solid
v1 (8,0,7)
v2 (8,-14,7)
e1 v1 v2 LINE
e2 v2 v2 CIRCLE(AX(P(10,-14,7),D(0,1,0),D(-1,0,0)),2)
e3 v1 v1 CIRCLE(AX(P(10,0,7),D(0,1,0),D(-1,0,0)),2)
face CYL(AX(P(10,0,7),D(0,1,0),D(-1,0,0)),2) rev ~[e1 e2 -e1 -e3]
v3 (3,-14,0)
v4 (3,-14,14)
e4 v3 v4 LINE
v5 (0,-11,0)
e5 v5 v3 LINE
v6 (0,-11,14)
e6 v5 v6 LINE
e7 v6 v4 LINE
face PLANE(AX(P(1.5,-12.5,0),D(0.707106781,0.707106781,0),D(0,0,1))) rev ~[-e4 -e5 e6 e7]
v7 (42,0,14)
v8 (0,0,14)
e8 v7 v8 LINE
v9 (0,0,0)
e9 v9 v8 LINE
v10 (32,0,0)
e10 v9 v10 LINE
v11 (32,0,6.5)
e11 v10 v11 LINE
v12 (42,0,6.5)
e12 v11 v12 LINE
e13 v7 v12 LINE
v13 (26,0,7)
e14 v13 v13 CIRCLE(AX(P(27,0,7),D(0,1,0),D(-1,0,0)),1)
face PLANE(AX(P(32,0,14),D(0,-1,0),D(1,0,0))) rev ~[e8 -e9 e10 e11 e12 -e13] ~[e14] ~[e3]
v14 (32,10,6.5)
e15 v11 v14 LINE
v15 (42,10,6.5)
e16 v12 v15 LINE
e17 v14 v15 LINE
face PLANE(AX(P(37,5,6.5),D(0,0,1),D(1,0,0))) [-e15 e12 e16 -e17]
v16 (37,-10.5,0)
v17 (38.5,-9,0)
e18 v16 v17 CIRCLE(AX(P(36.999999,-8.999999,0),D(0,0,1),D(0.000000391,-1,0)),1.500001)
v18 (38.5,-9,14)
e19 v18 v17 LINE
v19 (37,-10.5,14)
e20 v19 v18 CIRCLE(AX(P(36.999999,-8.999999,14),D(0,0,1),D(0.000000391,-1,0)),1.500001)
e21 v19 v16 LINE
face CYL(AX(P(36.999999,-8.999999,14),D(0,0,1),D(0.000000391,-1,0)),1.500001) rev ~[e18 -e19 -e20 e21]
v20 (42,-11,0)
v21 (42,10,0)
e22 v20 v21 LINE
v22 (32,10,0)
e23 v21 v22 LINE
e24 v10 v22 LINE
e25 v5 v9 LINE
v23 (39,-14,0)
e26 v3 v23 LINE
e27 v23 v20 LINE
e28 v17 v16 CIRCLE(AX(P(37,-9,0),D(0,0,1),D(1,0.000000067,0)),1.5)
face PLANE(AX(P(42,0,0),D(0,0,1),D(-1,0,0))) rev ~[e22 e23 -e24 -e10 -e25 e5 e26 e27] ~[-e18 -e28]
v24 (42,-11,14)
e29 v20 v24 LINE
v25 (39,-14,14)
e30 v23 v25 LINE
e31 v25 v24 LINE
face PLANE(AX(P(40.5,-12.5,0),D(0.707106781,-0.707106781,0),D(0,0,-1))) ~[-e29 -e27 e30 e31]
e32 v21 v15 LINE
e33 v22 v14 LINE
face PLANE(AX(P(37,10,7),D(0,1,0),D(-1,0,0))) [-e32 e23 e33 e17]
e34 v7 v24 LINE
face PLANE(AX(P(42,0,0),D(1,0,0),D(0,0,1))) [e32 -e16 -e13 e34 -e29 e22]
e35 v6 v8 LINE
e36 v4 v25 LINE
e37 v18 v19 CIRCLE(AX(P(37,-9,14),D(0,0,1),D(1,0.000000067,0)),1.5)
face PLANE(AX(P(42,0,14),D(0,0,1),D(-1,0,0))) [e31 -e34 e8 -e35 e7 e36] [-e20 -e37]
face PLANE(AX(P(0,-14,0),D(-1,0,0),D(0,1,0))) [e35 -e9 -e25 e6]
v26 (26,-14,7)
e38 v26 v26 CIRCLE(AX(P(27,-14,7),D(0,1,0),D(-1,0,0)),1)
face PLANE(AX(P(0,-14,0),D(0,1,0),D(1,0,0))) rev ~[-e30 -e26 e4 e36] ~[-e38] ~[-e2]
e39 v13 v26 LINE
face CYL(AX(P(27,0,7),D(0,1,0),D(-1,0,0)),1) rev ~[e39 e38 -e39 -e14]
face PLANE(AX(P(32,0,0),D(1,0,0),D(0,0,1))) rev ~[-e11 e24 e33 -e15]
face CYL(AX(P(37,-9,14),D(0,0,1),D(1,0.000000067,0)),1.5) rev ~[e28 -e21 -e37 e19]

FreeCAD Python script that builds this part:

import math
import FreeCAD as App
import Part
import Sketcher
from FreeCAD import Vector
Q = App.Units.Quantity


def edges_at(feature, points):
    """Names of the edges that pass closest to the given points."""
    edges = feature.Shape.Edges
    near = lambda p: min(range(len(edges)), key=lambda i: edges[i].distToShape(Part.Vertex(*p))[0])
    return sorted({f"Edge{near(p) + 1}" for p in points})


def add_polygon(sketch, points):
    """Adds a closed chain of lines whose ends are joined by coincident constraints."""
    first, n = sketch.GeometryCount, len(points)
    for a, b in zip(points, points[1:] + points[:1]):
        sketch.addGeometry(Part.LineSegment(App.Vector(*a, 0), App.Vector(*b, 0)), False)
    for i in range(n):
        sketch.addConstraint(Sketcher.Constraint("Coincident", first + i, 2, first + (i + 1) % n, 1))

doc = App.newDocument("Part")
body = doc.addObject("PartDesign::Body", "Body")

# Sketch on XY plane
sketch1 = body.newObject("Sketcher::SketchObject", "Sketch")
sketch1.AttachmentSupport = (doc.getObject("XY_Plane"), [""])
sketch1.MapMode = "FlatFace"
add_polygon(sketch1, [(0, 0), (0, -14), (42, -14), (42, 0)])  # lines 0-3
sketch1.addConstraint(Sketcher.Constraint("Vertical", 0))
sketch1.addConstraint(Sketcher.Constraint("Horizontal", 1))
sketch1.addConstraint(Sketcher.Constraint("Vertical", 2))
sketch1.addConstraint(Sketcher.Constraint("Horizontal", 3))
sketch1.addConstraint(Sketcher.Constraint("Coincident", 3, 2, -1, 1))
sketch1.addConstraint(Sketcher.Constraint("DistanceX", 1, 1, 1, 2, Q("42 mm")))
sketch1.addConstraint(Sketcher.Constraint("DistanceY", 0, 2, 0, 1, Q("14 mm")))
pad1 = body.newObject("PartDesign::Pad", "Pad")
pad1.Profile = sketch1
pad1.Length = 14

# Sketch on XY plane
sketch2 = body.newObject("Sketcher::SketchObject", "Sketch001")
sketch2.AttachmentSupport = (doc.getObject("XY_Plane"), [""])
sketch2.MapMode = "FlatFace"
sketch2.AttachmentOffset = App.Placement(Vector(0, 0, 14), App.Rotation())
sketch2.addGeometry(Part.ArcOfCircle(Part.Circle(Vector(37, -9, 0), Vector(0, 0, 1), 1.5), math.radians(-90), math.radians(0)), False)
sketch2.addGeometry(Part.ArcOfCircle(Part.Circle(Vector(37, -9, 0), Vector(0, 0, 1), 1.5), math.radians(0), math.radians(270)), False)
sketch2.addConstraint(Sketcher.Constraint("Tangent", 0, 1, 1, 2))
sketch2.addConstraint(Sketcher.Constraint("Coincident", 1, 1, 0, 2))
sketch2.addConstraint(Sketcher.Constraint("Horizontal", 0, 3, 1, 1))
sketch2.addConstraint(Sketcher.Constraint("Vertical", 1, 3, 0, 1))
sketch2.addConstraint(Sketcher.Constraint("Radius", 0, Q("1.500001 mm")))
sketch2.addConstraint(Sketcher.Constraint("DistanceX", -1, 1, 0, 3, Q("36.999999 mm")))
sketch2.addConstraint(Sketcher.Constraint("DistanceY", 0, 3, -1, 1, Q("8.999999 mm")))
pocket1 = body.newObject("PartDesign::Pocket", "Pocket")
pocket1.Profile = sketch2
pocket1.Length = 25
doc.recompute()

chamfer = body.newObject("PartDesign::Chamfer", "Chamfer")
chamfer.Base = (pocket1, edges_at(pocket1, [(0, -14, 7), (42, -14, 7)]))
chamfer.Size = 3

# Sketch on XZ plane
sketch3 = body.newObject("Sketcher::SketchObject", "Sketch002")
sketch3.AttachmentSupport = (doc.getObject("XZ_Plane"), [""])
sketch3.MapMode = "FlatFace"
sketch3.addGeometry(Part.Circle(Vector(27, 7, 0), Vector(0, 0, 1), 1), False)
sketch3.addGeometry(Part.Circle(Vector(10, 7, 0), Vector(0, 0, 1), 2), False)
sketch3.addConstraint(Sketcher.Constraint("Horizontal", 0, 3, 1, 3))
sketch3.addConstraint(Sketcher.Constraint("Diameter", 0, Q("2 mm")))
sketch3.addConstraint(Sketcher.Constraint("Diameter", 1, Q("4 mm")))
sketch3.addConstraint(Sketcher.Constraint("DistanceX", -1, 1, 0, 3, Q("27 mm")))
sketch3.addConstraint(Sketcher.Constraint("DistanceY", -1, 1, 0, 3, Q("7 mm")))
sketch3.addConstraint(Sketcher.Constraint("DistanceX", -1, 1, 1, 3, Q("10 mm")))
pocket2 = body.newObject("PartDesign::Pocket", "Pocket001")
pocket2.Profile = sketch3
pocket2.Length = 25
pocket2.Reversed = True

# Sketch on XZ plane
sketch4 = body.newObject("Sketcher::SketchObject", "Sketch003")
sketch4.AttachmentSupport = (doc.getObject("XZ_Plane"), [""])
sketch4.MapMode = "FlatFace"
sketch4.addGeometry(Part.Circle(Vector(27, 7, 0), Vector(0, 0, 1), 1), False)
sketch4.addGeometry(Part.Circle(Vector(10, 7, 0), Vector(0, 0, 1), 2), False)
sketch4.addConstraint(Sketcher.Constraint("Horizontal", 0, 3, 1, 3))
sketch4.addConstraint(Sketcher.Constraint("Diameter", 0, Q("2 mm")))
sketch4.addConstraint(Sketcher.Constraint("Diameter", 1, Q("4 mm")))
sketch4.addConstraint(Sketcher.Constraint("DistanceX", -1, 1, 0, 3, Q("27 mm")))
sketch4.addConstraint(Sketcher.Constraint("DistanceY", -1, 1, 0, 3, Q("7 mm")))
sketch4.addConstraint(Sketcher.Constraint("DistanceX", -1, 1, 1, 3, Q("10 mm")))
pocket3 = body.newObject("PartDesign::Pocket", "Pocket002")
pocket3.Profile = sketch4
pocket3.Length = 25
pocket3.Reversed = True

# Sketch on XZ plane
sketch5 = body.newObject("Sketcher::SketchObject", "Sketch004")
sketch5.AttachmentSupport = (doc.getObject("XZ_Plane"), [""])
sketch5.MapMode = "FlatFace"
add_polygon(sketch5, [(42, 14), (42, 0), (32, 0), (32, 14)])  # lines 0-3
sketch5.addConstraint(Sketcher.Constraint("Vertical", 0))
sketch5.addConstraint(Sketcher.Constraint("Horizontal", 1))
sketch5.addConstraint(Sketcher.Constraint("Vertical", 2))
sketch5.addConstraint(Sketcher.Constraint("Horizontal", 3))
sketch5.addConstraint(Sketcher.Constraint("PointOnObject", 0, 2, -1))
sketch5.addConstraint(Sketcher.Constraint("DistanceX", 1, 2, 1, 1, Q("10 mm")))
sketch5.addConstraint(Sketcher.Constraint("DistanceY", 0, 2, 0, 1, Q("14 mm")))
sketch5.addConstraint(Sketcher.Constraint("DistanceX", -1, 1, 0, 2, Q("42 mm")))
pad2 = body.newObject("PartDesign::Pad", "Pad001")
pad2.Profile = sketch5
pad2.Length = 10
pad2.Reversed = True

# Sketch on XY plane
sketch6 = body.newObject("Sketcher::SketchObject", "Sketch005")
sketch6.AttachmentSupport = (doc.getObject("XY_Plane"), [""])
sketch6.MapMode = "FlatFace"
sketch6.AttachmentOffset = App.Placement(Vector(0, 0, 14), App.Rotation())
add_polygon(sketch6, [(32, 10), (32, 0), (42, 0), (42, 10)])  # lines 0-3
sketch6.addConstraint(Sketcher.Constraint("Vertical", 0))
sketch6.addConstraint(Sketcher.Constraint("Horizontal", 1))
sketch6.addConstraint(Sketcher.Constraint("Vertical", 2))
sketch6.addConstraint(Sketcher.Constraint("Horizontal", 3))
sketch6.addConstraint(Sketcher.Constraint("PointOnObject", 0, 2, -1))
sketch6.addConstraint(Sketcher.Constraint("Equal", 3, 0))
sketch6.addConstraint(Sketcher.Constraint("DistanceX", 1, 1, 1, 2, Q("10 mm")))
sketch6.addConstraint(Sketcher.Constraint("DistanceX", -1, 1, 0, 2, Q("32 mm")))
pocket4 = body.newObject("PartDesign::Pocket", "Pocket003")
pocket4.Profile = sketch6
pocket4.Length = 7.5

doc.recompute()
